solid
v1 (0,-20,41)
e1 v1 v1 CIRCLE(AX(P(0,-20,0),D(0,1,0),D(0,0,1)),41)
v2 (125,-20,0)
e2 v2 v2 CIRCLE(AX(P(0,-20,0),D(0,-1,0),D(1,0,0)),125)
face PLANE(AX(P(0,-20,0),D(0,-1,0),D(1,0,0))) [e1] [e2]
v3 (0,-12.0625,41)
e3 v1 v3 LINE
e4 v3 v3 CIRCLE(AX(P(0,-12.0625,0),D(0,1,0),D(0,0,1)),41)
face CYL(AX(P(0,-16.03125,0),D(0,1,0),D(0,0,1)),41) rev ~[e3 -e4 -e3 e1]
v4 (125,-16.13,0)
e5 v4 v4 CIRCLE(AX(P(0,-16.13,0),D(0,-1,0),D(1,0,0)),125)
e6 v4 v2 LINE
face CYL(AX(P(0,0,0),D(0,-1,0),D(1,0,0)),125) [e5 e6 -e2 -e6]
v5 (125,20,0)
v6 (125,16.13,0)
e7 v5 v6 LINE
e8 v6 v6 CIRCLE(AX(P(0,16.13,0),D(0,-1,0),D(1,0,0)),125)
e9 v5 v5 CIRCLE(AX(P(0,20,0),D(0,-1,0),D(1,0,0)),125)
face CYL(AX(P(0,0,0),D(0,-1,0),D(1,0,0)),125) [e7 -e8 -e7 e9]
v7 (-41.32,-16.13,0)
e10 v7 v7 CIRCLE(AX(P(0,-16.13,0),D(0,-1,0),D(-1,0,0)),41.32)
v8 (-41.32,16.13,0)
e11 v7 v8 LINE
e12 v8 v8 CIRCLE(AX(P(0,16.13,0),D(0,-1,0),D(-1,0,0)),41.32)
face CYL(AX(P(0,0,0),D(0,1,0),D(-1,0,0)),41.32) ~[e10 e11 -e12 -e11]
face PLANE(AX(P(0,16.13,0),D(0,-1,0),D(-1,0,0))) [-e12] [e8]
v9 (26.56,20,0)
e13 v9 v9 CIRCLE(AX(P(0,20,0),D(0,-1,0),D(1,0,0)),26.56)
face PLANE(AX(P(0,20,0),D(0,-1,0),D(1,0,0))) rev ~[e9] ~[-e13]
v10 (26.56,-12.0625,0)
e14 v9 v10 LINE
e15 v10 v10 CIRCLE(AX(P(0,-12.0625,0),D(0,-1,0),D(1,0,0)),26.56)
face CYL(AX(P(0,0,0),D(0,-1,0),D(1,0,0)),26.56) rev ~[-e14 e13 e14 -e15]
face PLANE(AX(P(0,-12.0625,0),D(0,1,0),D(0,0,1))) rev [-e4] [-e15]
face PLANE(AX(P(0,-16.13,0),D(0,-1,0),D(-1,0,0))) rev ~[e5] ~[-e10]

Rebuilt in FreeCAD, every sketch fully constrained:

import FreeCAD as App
import Part
import Sketcher
Q = App.Units.Quantity

doc = App.newDocument("Part")
body = doc.addObject("PartDesign::Body", "Body")

sketch1 = doc.addObject("Sketcher::SketchObject", "Sketch")
body.addObject(sketch1)
sketch1.AttachmentSupport = (doc.XZ_Plane, [""])
sketch1.MapMode = "FlatFace"
sketch1.addGeometry(Part.Circle(App.Vector(0, 0, 0), App.Vector(0, 0, 1), 125), False)
sketch1.addConstraint([
    Sketcher.Constraint("Coincident", 0, 3, -1, 1),
    Sketcher.Constraint("Diameter", 0, Q("250 mm")),
])
pad1 = doc.addObject("PartDesign::Pad", "Pad")
body.addObject(pad1)
pad1.Profile = sketch1
pad1.Length = 40
pad1.Midplane = True

sketch2 = doc.addObject("Sketcher::SketchObject", "Sketch001")
body.addObject(sketch2)
sketch2.AttachmentSupport = (doc.XZ_Plane, [""])
sketch2.MapMode = "FlatFace"
sketch2.addGeometry(Part.Circle(App.Vector(0, 0, 0), App.Vector(0, 0, 1), 27), False)
sketch2.addConstraint([
    Sketcher.Constraint("Coincident", 0, 3, -1, 1),
    Sketcher.Constraint("Diameter", 0, Q("53.12 mm")),
])
pocket1 = doc.addObject("PartDesign::Pocket", "Pocket")
body.addObject(pocket1)
pocket1.Profile = sketch2
pocket1.Length = 40
pocket1.Midplane = True

sketch3 = doc.addObject("Sketcher::SketchObject", "Sketch002")
body.addObject(sketch3)
sketch3.AttachmentSupport = (doc.XY_Plane, [""])
sketch3.MapMode = "FlatFace"
sketch3.addGeometry([
    Part.LineSegment(App.Vector(-128, 16, 0), App.Vector(-128, -16, 0)),
    Part.LineSegment(App.Vector(-128, -16, 0), App.Vector(-41, -16, 0)),
    Part.LineSegment(App.Vector(-41, -16, 0), App.Vector(-41, 16, 0)),
    Part.LineSegment(App.Vector(-41, 16, 0), App.Vector(-128, 16, 0)),
], False)
sketch3.addConstraint([
    Sketcher.Constraint("Coincident", 0, 2, 1, 1),
    Sketcher.Constraint("Coincident", 1, 2, 2, 1),
    Sketcher.Constraint("Coincident", 2, 2, 3, 1),
    Sketcher.Constraint("Coincident", 3, 2, 0, 1),
    Sketcher.Constraint("Vertical", 0),
    Sketcher.Constraint("Horizontal", 1),
    Sketcher.Constraint("Vertical", 2),
    Sketcher.Constraint("Horizontal", 3),
    Sketcher.Constraint("DistanceY", 0, 2, 0, 1, Q("32.26 mm")),
    Sketcher.Constraint("DistanceY", 0, 2, -1, 1, Q("16.13 mm")),
    Sketcher.Constraint("DistanceX", 1, 2, -1, 1, Q("41.32 mm")),
    Sketcher.Constraint("DistanceX", 1, 1, 1, 2, Q("86.677861 mm")),
])
groove = doc.addObject("PartDesign::Groove", "Groove")
body.addObject(groove)
groove.Profile = sketch3
groove.ReferenceAxis = (sketch3, ["V_Axis"])
groove.Angle = 360

sketch4 = doc.addObject("Sketcher::SketchObject", "Sketch003")
body.addObject(sketch4)
sketch4.AttachmentSupport = (doc.YZ_Plane, [""])
sketch4.MapMode = "FlatFace"
sketch4.addGeometry([
    Part.LineSegment(App.Vector(-20, 41, 0), App.Vector(-20, 0, 0)),
    Part.LineSegment(App.Vector(-20, 0, 0), App.Vector(-12, 0, 0)),
    Part.LineSegment(App.Vector(-12, 0, 0), App.Vector(-12, 41, 0)),
    Part.LineSegment(App.Vector(-12, 41, 0), App.Vector(-20, 41, 0)),
], False)
sketch4.addConstraint([
    Sketcher.Constraint("Coincident", 0, 2, 1, 1),
    Sketcher.Constraint("Coincident", 1, 2, 2, 1),
    Sketcher.Constraint("Coincident", 2, 2, 3, 1),
    Sketcher.Constraint("Coincident", 3, 2, 0, 1),
    Sketcher.Constraint("Vertical", 0),
    Sketcher.Constraint("Horizontal", 1),
    Sketcher.Constraint("Vertical", 2),
    Sketcher.Constraint("Horizontal", 3),
    Sketcher.Constraint("PointOnObject", 0, 2, -1),
    Sketcher.Constraint("DistanceY", 0, 2, 0, 1, Q("41 mm")),
    Sketcher.Constraint("DistanceX", 0, 2, -1, 1, Q("20 mm")),
    Sketcher.Constraint("DistanceX", 1, 1, 1, 2, Q("7.9375 mm")),
])
groove2 = doc.addObject("PartDesign::Groove", "Groove001")
body.addObject(groove2)
groove2.Profile = sketch4
groove2.ReferenceAxis = (sketch4, ["H_Axis"])
groove2.Angle = 360

doc.recompute()
